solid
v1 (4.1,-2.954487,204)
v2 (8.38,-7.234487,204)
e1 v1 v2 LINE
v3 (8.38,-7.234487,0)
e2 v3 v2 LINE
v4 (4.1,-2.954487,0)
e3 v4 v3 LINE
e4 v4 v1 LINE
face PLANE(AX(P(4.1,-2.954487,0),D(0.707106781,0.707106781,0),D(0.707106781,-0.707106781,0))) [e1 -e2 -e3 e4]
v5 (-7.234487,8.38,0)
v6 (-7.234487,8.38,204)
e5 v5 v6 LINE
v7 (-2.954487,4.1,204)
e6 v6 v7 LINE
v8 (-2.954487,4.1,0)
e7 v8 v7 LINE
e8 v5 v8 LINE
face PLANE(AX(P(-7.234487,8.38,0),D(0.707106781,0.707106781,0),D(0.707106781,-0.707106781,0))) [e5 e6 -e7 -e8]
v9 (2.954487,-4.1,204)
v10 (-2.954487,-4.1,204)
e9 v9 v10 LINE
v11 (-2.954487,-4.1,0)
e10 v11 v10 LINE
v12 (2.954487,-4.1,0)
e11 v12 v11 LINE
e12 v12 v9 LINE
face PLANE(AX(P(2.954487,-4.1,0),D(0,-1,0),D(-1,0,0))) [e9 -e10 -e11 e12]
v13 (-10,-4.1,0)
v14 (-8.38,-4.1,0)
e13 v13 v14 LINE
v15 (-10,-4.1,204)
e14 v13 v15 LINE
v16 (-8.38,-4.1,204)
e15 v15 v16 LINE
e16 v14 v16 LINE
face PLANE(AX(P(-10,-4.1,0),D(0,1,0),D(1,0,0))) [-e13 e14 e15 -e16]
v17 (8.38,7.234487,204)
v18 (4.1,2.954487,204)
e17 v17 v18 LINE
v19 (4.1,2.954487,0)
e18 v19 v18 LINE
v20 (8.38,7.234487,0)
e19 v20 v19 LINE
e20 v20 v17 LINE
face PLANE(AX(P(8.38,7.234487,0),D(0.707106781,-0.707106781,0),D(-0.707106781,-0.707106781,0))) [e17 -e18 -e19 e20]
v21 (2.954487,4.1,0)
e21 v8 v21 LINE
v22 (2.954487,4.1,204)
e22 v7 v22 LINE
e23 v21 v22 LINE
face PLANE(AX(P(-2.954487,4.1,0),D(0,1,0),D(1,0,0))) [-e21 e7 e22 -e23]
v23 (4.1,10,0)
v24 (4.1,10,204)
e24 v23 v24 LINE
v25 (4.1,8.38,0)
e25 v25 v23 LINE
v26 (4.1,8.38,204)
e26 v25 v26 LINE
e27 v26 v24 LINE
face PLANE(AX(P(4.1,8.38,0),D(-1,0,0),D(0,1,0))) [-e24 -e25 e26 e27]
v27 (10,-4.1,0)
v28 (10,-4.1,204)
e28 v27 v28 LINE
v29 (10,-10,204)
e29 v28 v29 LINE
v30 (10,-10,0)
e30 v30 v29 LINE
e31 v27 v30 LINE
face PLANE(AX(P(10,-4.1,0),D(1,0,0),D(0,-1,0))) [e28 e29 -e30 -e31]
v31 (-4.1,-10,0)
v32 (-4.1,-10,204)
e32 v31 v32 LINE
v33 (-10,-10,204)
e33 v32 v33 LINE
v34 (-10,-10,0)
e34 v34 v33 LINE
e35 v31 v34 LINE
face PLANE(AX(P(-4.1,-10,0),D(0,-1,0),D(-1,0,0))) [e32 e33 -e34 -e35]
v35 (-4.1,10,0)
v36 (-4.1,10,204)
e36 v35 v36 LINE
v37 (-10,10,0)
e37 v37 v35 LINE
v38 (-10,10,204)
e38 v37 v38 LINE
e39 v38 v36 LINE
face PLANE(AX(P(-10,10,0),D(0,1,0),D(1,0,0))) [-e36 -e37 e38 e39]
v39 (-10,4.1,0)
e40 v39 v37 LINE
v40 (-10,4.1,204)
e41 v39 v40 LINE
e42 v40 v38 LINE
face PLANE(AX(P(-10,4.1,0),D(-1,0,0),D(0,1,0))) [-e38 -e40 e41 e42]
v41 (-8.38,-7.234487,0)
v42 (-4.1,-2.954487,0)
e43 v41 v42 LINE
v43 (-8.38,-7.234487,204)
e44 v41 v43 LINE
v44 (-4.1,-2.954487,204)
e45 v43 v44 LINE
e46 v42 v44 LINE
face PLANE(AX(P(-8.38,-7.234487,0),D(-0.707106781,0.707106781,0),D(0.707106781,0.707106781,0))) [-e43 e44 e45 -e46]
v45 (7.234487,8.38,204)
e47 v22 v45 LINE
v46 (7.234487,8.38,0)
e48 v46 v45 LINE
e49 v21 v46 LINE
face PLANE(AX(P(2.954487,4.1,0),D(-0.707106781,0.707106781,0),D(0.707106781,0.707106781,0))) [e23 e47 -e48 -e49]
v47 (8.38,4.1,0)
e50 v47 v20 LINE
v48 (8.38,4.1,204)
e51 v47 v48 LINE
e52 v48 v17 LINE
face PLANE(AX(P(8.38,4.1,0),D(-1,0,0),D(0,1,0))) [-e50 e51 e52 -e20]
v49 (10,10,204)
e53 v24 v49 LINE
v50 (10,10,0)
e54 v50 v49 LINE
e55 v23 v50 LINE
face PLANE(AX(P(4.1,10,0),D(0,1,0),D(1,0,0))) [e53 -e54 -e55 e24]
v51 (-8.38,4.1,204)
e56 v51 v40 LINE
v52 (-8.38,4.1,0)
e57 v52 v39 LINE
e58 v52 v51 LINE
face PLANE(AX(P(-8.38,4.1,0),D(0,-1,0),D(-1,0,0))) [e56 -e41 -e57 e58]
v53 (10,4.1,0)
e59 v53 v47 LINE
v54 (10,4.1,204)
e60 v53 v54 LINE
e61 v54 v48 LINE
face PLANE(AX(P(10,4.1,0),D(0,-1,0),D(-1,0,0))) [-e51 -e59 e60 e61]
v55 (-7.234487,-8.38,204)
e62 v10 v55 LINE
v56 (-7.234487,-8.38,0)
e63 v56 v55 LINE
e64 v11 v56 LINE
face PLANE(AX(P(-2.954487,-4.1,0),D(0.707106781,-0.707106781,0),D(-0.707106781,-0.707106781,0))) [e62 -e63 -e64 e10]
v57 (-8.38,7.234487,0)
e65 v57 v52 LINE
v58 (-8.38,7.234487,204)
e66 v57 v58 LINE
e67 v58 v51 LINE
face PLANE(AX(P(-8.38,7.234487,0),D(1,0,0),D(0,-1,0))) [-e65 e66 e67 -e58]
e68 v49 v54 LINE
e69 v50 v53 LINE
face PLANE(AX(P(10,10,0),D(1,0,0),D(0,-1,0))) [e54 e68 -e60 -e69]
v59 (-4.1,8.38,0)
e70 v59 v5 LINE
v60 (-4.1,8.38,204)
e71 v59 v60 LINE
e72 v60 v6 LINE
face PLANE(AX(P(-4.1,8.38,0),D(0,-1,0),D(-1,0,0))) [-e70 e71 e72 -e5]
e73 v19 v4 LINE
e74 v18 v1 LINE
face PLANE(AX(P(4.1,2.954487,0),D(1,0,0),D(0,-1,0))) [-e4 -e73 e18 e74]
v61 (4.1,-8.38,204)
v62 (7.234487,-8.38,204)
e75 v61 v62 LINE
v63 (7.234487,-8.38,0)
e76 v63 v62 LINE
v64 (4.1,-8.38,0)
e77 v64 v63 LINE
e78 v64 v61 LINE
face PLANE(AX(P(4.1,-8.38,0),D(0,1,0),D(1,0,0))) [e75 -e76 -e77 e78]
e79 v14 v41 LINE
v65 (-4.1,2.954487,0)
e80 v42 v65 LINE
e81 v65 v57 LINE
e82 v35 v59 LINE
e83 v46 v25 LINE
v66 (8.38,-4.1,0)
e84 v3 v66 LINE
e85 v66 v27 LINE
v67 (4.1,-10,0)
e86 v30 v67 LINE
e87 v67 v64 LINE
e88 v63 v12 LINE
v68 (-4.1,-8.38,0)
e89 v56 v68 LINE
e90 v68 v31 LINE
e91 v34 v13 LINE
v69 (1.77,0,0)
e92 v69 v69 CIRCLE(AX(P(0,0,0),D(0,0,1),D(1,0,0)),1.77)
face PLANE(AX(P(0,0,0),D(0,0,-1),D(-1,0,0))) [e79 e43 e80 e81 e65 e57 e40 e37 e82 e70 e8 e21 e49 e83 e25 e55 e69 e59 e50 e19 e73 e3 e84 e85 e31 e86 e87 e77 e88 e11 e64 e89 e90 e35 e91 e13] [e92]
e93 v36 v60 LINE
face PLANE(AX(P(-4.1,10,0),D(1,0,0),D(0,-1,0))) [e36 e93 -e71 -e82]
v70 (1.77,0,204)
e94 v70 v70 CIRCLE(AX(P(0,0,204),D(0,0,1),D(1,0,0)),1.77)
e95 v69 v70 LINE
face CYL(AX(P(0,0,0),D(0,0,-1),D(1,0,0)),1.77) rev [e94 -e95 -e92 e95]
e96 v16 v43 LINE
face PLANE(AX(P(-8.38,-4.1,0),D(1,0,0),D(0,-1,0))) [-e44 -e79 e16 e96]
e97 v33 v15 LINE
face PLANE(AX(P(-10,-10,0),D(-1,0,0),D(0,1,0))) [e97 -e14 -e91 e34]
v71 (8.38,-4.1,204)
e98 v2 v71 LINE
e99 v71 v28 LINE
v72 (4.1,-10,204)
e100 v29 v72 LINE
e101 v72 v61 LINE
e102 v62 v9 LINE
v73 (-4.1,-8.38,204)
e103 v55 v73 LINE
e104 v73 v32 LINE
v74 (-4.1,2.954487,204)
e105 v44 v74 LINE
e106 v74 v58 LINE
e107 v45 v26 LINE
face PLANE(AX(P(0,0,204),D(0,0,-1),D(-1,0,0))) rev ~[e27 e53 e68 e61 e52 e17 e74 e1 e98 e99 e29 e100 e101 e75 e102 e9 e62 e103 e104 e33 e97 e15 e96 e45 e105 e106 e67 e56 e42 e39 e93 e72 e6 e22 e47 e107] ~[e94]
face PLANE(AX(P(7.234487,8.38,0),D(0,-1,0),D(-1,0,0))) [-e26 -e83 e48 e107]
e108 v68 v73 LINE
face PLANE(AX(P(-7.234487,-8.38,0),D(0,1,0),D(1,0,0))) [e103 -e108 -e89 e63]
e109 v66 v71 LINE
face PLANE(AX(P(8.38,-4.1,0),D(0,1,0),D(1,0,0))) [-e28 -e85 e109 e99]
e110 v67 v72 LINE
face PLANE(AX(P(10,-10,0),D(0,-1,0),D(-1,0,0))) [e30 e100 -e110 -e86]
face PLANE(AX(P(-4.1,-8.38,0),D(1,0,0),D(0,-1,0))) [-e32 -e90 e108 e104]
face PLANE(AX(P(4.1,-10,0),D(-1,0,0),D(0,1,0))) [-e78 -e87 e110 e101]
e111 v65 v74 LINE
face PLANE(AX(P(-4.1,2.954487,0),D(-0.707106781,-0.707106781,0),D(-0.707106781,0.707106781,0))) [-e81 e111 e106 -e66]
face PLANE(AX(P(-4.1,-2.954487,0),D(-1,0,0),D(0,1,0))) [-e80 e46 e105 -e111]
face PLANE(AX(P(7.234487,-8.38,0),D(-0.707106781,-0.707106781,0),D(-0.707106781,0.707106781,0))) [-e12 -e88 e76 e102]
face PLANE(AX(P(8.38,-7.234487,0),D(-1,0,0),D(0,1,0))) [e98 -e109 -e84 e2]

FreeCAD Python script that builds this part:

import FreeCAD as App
import Part
import Sketcher

V = App.Vector
Q = App.Units.Quantity


def add_polygon(sketch, points):
    """Adds a closed chain of lines whose ends are joined by coincident constraints."""
    first, n = sketch.GeometryCount, len(points)
    for a, b in zip(points, points[1:] + points[:1]):
        sketch.addGeometry(Part.LineSegment(App.Vector(*a, 0), App.Vector(*b, 0)), False)
    for i in range(n):
        sketch.addConstraint(Sketcher.Constraint("Coincident", first + i, 2, first + (i + 1) % n, 1))

doc = App.newDocument("Part")
body = doc.addObject("PartDesign::Body", "Body")

sketch1 = doc.addObject("Sketcher::SketchObject", "Sketch")
body.addObject(sketch1)
sketch1.AttachmentSupport = (doc.XY_Plane, [""])
sketch1.MapMode = "FlatFace"
add_polygon(sketch1, [(-10, 4.1), (-8.4, 4.1), (-8.4, 7.2), (-4.1, 3), (-4.1, -3), (-8.4, -7.2), (-8.4, -4.1), (-10, -4.1), (-10, -10), (-4.1, -10), (-4.1, -8.4), (-7.2, -8.4), (-3, -4.1), (3, -4.1), (7.2, -8.4), (4.1, -8.4), (4.1, -10), (10, -10), (10, -4.1), (8.4, -4.1), (8.4, -7.2), (4.1, -3), (4.1, 3), (8.4, 7.2), (8.4, 4.1), (10, 4.1), (10, 10), (4.1, 10), (4.1, 8.4), (7.2, 8.4), (3, 4.1), (-3, 4.1), (-7.2, 8.4), (-4.1, 8.4), (-4.1, 10), (-10, 10)])
sketch1.addGeometry(Part.Circle(V(0, 0, 0), V(0, 0, 1), 1.8), False)
sketch1.addConstraint([
    Sketcher.Constraint("Horizontal", 0),
    Sketcher.Constraint("Vertical", 1),
    Sketcher.Constraint("Vertical", 3),
    Sketcher.Constraint("Vertical", 5),
    Sketcher.Constraint("Horizontal", 6),
    Sketcher.Constraint("Vertical", 7),
    Sketcher.Constraint("Horizontal", 8),
    Sketcher.Constraint("Vertical", 9),
    Sketcher.Constraint("Horizontal", 10),
    Sketcher.Constraint("Horizontal", 12),
    Sketcher.Constraint("Horizontal", 14),
    Sketcher.Constraint("Vertical", 15),
    Sketcher.Constraint("Horizontal", 16),
    Sketcher.Constraint("Vertical", 17),
    Sketcher.Constraint("Horizontal", 18),
    Sketcher.Constraint("Vertical", 19),
    Sketcher.Constraint("Vertical", 21),
    Sketcher.Constraint("Vertical", 23),
    Sketcher.Constraint("Horizontal", 24),
    Sketcher.Constraint("Vertical", 25),
    Sketcher.Constraint("Horizontal", 26),
    Sketcher.Constraint("Vertical", 27),
    Sketcher.Constraint("Horizontal", 28),
    Sketcher.Constraint("Horizontal", 30),
    Sketcher.Constraint("Horizontal", 32),
    Sketcher.Constraint("Vertical", 33),
    Sketcher.Constraint("Horizontal", 34),
    Sketcher.Constraint("Vertical", 35),
    Sketcher.Constraint("Coincident", 36, 3, -1, 1),
    Sketcher.Constraint("Symmetric", 0, 2, 18, 2, -1, 1),
    Sketcher.Constraint("Symmetric", 2, 2, 20, 2, -1, 1),
    Sketcher.Constraint("Symmetric", 4, 2, 22, 2, -1, 1),
    Sketcher.Constraint("Symmetric", 6, 2, 24, 2, -1, 1),
    Sketcher.Constraint("Symmetric", 8, 2, 26, 2, -1, 1),
    Sketcher.Constraint("Symmetric", 10, 2, 28, 2, -1, 1),
    Sketcher.Constraint("Symmetric", 11, 2, 29, 2, -1, 1),
    Sketcher.Constraint("Symmetric", 13, 2, 31, 2, -1, 1),
    Sketcher.Constraint("Symmetric", 15, 2, 33, 2, -1, 1),
    Sketcher.Constraint("Symmetric", 10, 2, 13, 2, -2),
    Sketcher.Constraint("Symmetric", 8, 2, 15, 2, -2),
    Sketcher.Constraint("Symmetric", 6, 2, 17, 2, -2),
    Sketcher.Constraint("Symmetric", 4, 2, 19, 2, -2),
    Sketcher.Constraint("Perpendicular", 2, 4),
    Sketcher.Constraint("Parallel", 4, 11),
    Sketcher.Constraint("Perpendicular", 11, 13),
    Sketcher.Constraint("Parallel", 13, 20),
    Sketcher.Constraint("Perpendicular", 20, 22),
    Sketcher.Constraint("Perpendicular", 29, 31),
    Sketcher.Constraint("Horizontal", 6, 2, 11, 2),
    Sketcher.Constraint("Horizontal", 3, 2, 20, 2),
    Sketcher.Constraint("Vertical", 3, 2, 8, 2),
    Sketcher.Constraint("Vertical", 7, 2, 34, 2),
    Sketcher.Constraint("Equal", 32, 1),
    Sketcher.Constraint("Equal", 30, 3),
    Sketcher.Constraint("Equal", 34, 7),
    Sketcher.Constraint("Equal", 24, 9),
    Sketcher.Constraint("Diameter", 36, Q("3.54 mm")),
    Sketcher.Constraint("DistanceX", 8, 1, 8, 2, Q("5.9 mm")),
    Sketcher.Constraint("DistanceX", 6, 2, -1, 1, Q("10 mm")),
    Sketcher.Constraint("DistanceX", 0, 1, 0, 2, Q("1.62 mm")),
    Sketcher.Constraint("DistanceX", 10, 2, 10, 1, Q("3.134487 mm")),
])
pad1 = doc.addObject("PartDesign::Pad", "Pad")
body.addObject(pad1)
pad1.Profile = sketch1
pad1.Length = 204

doc.recompute()
